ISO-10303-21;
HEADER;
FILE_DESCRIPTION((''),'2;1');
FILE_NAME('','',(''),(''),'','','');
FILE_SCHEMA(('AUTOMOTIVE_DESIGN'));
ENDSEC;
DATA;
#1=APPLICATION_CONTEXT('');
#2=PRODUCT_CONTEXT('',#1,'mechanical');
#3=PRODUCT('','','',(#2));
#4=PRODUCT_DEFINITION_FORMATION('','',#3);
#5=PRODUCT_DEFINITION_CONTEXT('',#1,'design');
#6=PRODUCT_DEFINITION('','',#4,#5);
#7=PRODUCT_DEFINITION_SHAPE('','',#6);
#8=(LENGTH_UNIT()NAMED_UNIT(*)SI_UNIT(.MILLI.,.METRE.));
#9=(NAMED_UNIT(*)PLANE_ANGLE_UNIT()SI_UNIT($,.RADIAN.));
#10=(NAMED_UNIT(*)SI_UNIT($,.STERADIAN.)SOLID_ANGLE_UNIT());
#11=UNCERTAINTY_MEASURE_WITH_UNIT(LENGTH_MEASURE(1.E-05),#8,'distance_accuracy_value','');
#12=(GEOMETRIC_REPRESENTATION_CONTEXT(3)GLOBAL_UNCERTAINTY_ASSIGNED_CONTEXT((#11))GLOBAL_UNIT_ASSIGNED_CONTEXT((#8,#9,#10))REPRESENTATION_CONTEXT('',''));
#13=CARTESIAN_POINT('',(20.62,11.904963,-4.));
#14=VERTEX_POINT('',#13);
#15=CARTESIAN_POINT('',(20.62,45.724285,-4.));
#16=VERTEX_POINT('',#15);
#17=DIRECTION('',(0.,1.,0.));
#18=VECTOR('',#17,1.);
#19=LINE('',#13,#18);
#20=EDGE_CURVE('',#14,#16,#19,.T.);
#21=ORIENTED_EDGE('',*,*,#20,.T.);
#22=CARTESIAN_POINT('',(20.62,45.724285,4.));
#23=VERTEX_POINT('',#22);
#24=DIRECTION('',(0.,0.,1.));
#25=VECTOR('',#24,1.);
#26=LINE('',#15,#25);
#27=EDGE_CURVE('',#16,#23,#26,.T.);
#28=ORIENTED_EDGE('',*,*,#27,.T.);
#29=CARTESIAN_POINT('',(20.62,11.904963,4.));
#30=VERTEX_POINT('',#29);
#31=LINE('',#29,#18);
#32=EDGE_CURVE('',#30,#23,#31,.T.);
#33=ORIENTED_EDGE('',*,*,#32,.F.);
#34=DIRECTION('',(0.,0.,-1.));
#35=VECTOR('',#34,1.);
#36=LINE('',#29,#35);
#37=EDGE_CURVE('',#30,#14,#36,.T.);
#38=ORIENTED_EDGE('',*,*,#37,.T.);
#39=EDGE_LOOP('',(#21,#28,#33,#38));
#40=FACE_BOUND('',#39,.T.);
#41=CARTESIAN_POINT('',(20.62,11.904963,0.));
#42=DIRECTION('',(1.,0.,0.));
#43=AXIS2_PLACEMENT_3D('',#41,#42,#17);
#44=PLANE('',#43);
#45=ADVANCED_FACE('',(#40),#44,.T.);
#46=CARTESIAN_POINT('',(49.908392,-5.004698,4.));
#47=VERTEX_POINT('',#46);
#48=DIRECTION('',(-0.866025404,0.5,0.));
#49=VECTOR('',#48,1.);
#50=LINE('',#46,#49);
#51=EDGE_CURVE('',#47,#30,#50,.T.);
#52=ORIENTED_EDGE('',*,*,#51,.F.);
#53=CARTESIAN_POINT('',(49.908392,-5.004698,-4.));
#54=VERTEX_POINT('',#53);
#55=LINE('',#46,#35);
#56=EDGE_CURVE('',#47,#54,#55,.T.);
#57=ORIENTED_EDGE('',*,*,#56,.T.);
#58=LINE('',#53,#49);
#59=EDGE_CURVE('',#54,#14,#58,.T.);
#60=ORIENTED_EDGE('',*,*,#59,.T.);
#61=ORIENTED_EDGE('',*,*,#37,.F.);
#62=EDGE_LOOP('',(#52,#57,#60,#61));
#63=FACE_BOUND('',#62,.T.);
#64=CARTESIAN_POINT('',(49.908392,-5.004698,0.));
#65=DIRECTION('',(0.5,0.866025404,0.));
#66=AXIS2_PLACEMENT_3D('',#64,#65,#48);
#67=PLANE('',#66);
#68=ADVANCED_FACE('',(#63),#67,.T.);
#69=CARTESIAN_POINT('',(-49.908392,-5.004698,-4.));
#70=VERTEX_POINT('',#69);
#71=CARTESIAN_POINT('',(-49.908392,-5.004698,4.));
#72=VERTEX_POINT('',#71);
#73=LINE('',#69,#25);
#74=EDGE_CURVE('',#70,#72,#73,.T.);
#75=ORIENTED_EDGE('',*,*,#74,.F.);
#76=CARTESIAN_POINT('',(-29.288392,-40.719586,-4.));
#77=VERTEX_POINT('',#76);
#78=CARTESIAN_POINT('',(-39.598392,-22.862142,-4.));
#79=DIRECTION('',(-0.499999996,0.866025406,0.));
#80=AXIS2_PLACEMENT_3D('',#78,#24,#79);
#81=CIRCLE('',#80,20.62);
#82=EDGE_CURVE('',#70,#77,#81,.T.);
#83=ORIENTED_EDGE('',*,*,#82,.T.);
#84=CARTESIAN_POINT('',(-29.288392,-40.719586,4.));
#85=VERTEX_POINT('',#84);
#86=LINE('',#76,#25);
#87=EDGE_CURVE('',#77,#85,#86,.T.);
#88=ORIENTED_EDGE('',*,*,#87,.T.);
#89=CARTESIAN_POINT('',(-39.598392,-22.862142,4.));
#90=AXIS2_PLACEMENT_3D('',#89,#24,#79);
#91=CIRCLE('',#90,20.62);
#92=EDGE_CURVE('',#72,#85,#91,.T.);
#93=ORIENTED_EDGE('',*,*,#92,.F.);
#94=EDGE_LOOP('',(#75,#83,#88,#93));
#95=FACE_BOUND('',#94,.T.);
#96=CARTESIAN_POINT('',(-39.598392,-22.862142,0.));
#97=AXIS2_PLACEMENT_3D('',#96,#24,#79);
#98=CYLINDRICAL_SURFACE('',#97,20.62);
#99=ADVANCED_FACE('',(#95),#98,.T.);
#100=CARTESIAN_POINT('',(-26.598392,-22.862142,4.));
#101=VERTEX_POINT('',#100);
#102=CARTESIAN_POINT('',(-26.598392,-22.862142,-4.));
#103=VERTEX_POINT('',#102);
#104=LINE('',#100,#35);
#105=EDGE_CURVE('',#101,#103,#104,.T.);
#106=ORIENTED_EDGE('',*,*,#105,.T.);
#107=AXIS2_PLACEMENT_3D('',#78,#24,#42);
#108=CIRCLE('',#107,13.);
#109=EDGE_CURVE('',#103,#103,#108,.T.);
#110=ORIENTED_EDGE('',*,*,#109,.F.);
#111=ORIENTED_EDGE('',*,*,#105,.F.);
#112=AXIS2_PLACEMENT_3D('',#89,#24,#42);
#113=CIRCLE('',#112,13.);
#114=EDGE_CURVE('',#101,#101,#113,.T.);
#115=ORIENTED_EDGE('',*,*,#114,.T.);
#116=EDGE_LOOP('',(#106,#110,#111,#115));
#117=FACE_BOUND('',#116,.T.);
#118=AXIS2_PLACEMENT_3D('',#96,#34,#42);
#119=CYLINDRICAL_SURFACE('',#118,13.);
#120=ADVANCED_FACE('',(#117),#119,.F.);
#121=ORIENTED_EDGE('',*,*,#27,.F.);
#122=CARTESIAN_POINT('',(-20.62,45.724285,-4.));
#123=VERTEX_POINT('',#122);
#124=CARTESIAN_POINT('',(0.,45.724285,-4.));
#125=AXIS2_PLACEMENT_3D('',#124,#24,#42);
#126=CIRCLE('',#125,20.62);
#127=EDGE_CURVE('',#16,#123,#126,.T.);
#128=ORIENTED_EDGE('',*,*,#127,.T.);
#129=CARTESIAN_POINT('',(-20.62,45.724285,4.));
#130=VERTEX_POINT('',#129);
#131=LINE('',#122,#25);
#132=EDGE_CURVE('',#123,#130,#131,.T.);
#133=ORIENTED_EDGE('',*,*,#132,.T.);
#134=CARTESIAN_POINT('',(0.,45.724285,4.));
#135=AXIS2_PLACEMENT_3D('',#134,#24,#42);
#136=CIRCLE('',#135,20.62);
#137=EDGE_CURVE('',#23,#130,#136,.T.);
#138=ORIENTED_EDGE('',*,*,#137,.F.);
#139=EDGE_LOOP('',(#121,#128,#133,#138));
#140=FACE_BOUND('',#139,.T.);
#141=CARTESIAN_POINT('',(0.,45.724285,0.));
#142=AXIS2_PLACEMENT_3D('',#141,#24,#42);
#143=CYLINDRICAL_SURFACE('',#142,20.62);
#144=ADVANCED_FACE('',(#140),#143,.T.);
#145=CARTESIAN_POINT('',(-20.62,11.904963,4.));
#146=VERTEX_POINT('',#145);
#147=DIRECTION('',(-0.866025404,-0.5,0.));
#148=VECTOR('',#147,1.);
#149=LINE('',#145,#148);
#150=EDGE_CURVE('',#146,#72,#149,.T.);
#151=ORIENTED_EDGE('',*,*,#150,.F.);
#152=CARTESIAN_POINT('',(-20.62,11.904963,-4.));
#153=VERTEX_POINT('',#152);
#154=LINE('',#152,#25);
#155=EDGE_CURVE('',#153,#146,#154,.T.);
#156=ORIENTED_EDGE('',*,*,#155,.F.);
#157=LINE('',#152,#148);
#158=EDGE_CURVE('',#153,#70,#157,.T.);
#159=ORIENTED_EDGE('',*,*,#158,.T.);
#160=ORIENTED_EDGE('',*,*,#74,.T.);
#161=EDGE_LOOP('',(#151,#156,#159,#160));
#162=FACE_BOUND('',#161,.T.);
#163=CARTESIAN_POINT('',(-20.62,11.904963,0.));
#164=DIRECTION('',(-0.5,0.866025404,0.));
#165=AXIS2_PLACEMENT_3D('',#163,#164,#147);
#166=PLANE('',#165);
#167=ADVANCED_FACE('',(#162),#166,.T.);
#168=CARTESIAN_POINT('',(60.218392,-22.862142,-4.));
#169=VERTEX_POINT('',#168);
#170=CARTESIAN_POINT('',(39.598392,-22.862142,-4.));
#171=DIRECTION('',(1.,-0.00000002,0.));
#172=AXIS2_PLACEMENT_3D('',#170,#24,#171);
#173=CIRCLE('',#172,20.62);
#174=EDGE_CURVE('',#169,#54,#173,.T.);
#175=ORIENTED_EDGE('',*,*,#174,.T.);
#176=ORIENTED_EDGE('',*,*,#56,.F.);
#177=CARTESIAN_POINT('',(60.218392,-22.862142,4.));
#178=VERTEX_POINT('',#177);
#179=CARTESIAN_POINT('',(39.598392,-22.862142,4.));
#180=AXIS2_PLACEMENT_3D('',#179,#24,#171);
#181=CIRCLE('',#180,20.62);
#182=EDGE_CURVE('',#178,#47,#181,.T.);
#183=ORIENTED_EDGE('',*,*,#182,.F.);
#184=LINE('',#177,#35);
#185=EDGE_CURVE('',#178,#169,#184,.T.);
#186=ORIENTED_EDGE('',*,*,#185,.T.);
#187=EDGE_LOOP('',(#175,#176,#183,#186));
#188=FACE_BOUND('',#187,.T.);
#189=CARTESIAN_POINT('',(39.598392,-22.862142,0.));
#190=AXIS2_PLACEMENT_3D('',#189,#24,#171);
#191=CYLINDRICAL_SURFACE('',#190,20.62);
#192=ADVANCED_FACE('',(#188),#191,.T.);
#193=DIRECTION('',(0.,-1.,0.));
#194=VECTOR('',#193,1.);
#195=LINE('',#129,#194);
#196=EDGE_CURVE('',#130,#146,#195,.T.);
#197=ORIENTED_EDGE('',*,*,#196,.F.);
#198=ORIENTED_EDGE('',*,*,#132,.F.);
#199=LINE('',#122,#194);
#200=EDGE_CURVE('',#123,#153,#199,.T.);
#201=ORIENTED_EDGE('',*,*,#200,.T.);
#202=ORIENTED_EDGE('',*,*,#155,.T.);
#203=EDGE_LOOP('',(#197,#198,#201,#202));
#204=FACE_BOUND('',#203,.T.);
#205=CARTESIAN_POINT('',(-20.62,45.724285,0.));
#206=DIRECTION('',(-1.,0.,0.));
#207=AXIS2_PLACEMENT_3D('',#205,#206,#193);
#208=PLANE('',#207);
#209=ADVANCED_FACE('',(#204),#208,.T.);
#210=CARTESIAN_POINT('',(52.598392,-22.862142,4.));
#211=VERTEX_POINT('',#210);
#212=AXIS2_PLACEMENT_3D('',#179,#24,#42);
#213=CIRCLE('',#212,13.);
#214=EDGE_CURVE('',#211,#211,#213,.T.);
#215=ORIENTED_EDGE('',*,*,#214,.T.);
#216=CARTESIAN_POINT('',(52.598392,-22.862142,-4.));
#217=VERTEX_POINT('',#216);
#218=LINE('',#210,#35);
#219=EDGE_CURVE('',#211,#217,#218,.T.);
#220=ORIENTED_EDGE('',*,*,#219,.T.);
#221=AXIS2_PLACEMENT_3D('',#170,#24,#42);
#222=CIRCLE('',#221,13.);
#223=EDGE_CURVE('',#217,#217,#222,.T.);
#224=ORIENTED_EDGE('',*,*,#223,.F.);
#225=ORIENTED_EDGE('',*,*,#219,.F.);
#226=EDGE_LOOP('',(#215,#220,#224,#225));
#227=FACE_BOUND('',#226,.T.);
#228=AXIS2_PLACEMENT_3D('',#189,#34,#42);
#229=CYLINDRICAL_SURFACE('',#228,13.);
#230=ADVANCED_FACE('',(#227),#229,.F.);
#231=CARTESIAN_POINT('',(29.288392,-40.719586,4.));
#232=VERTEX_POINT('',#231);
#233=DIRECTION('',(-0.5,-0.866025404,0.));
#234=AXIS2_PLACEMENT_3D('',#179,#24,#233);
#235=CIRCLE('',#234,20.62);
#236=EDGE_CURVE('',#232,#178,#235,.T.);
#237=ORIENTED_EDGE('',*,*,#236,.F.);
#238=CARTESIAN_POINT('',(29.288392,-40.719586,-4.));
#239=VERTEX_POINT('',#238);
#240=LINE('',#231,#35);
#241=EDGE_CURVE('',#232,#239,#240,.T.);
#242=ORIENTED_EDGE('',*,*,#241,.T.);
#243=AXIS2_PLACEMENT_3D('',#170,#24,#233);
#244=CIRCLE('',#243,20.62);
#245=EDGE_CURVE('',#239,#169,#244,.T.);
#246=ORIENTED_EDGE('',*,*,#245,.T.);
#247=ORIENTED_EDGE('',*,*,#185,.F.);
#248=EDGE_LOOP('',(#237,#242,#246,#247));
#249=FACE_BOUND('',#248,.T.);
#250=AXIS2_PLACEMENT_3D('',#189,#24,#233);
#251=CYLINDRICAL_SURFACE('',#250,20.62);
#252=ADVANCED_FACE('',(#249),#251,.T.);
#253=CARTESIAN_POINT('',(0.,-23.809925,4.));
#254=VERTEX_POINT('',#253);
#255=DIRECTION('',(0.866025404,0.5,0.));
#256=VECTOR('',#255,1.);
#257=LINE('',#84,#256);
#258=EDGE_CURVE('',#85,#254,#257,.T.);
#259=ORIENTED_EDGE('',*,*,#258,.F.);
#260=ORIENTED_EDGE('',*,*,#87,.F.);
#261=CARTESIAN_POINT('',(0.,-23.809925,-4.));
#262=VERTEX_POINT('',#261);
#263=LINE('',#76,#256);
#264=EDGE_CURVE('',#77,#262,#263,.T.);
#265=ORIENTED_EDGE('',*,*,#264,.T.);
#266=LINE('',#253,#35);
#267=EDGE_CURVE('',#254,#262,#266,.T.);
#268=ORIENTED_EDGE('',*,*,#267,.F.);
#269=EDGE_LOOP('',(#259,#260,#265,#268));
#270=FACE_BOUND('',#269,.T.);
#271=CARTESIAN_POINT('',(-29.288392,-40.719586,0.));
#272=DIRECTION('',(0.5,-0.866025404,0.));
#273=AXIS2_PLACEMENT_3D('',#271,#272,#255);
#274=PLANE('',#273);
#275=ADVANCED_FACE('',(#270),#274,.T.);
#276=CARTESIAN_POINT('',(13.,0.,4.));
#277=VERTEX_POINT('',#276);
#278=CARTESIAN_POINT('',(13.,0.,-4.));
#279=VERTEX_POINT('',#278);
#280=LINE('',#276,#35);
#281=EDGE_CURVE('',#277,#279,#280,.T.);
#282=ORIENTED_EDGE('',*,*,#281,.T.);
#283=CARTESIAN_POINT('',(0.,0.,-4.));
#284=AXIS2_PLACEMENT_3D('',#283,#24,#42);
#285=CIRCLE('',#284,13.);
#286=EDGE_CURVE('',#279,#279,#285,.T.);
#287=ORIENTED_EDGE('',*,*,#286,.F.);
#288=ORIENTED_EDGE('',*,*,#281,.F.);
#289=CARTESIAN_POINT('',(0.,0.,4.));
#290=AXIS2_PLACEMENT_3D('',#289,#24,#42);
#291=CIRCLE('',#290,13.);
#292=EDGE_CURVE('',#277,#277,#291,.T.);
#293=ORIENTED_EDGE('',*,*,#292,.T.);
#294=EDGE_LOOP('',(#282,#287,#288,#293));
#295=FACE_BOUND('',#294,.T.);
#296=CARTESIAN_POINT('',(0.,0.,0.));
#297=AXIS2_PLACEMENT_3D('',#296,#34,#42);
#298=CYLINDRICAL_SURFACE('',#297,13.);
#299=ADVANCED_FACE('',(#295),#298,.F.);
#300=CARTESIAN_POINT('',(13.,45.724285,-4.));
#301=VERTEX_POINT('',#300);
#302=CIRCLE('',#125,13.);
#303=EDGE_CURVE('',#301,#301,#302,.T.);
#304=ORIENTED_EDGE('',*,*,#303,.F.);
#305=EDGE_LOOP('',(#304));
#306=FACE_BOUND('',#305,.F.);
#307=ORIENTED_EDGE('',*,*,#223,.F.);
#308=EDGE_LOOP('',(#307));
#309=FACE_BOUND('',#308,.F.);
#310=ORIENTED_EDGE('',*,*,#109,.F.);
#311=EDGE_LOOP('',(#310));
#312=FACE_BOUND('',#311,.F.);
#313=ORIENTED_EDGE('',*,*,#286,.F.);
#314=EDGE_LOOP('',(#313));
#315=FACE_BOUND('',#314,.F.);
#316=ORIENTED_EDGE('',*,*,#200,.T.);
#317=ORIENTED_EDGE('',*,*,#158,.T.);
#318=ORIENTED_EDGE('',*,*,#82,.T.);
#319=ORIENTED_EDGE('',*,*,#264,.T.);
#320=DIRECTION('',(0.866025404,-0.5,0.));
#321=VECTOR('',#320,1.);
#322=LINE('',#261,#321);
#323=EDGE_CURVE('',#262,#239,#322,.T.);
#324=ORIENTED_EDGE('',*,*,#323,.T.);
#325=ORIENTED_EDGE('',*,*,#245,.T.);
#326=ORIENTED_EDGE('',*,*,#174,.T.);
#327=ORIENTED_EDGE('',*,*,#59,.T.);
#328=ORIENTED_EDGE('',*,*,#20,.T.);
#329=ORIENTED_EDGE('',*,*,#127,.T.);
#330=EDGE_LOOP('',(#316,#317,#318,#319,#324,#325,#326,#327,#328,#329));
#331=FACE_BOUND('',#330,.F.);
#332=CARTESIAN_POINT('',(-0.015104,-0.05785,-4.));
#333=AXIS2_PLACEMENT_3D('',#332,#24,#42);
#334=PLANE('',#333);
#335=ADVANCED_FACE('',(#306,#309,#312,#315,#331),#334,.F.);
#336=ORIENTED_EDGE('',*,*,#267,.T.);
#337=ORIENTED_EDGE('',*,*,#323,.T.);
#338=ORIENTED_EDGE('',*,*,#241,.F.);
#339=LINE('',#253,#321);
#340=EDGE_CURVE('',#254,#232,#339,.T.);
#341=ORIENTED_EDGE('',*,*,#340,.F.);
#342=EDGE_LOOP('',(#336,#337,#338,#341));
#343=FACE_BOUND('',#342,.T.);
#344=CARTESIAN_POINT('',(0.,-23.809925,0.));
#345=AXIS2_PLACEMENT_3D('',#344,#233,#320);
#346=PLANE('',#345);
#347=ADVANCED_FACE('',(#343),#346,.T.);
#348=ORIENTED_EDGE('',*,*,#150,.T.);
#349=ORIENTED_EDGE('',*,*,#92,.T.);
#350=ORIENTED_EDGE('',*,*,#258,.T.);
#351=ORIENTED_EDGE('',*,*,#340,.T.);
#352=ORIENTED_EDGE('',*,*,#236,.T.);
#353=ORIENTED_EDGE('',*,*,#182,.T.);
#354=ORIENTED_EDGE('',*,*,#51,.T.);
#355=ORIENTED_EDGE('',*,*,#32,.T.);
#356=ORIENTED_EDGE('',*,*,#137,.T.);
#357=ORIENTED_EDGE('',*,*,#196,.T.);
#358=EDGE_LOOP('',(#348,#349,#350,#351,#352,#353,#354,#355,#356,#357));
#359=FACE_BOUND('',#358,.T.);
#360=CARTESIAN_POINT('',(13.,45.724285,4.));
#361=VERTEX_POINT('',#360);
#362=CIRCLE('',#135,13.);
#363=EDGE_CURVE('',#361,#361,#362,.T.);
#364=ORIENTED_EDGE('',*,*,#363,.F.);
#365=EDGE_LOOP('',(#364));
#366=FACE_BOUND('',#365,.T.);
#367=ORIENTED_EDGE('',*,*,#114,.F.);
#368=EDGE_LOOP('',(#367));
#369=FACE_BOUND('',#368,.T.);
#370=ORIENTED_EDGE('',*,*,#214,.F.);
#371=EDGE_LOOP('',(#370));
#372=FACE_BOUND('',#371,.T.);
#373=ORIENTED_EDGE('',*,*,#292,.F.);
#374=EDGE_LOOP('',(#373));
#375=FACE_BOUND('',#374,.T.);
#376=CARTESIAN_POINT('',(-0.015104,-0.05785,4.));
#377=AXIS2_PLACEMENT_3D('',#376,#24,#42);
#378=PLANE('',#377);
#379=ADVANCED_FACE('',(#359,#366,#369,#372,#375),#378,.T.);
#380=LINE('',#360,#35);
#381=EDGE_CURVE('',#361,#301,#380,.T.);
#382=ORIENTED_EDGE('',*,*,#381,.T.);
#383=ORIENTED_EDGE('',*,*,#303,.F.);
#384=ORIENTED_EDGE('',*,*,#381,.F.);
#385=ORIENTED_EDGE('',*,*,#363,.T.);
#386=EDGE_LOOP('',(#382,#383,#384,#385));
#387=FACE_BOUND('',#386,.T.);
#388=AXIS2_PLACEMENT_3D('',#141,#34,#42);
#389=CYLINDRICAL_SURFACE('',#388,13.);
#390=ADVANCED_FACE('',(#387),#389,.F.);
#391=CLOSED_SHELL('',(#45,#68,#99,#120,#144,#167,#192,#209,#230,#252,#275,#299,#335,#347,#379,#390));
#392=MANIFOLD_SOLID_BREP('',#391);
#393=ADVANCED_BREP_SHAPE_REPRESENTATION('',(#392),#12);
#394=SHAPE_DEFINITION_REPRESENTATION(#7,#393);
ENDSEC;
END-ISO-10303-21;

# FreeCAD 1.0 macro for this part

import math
import FreeCAD as App
import Part
import Sketcher
Q = App.Units.Quantity

doc = App.newDocument("Part")
params = doc.addObject("Spreadsheet::Sheet", "Params")
for row, (alias, value) in enumerate([
    ("sketch1_diameter", "26 mm"),
    ("sketch1_radius", "20.62 mm"),
    ("pad1_length", "8 mm"),
], start=1):
    params.set(f"A{row}", alias)
    params.set(f"B{row}", "=" + value)
    params.setAlias(f"B{row}", alias)

body = doc.addObject("PartDesign::Body", "Body")

# Sketch on XY plane
sketch1 = body.newObject("Sketcher::SketchObject", "Sketch")
sketch1.AttachmentSupport = (doc.getObject("XY_Plane"), [""])
sketch1.MapMode = "FlatFace"
sketch1.addGeometry([
    Part.LineSegment(App.Vector(21, 12, 0), App.Vector(21, 46, 0)),  # 0
    Part.ArcOfCircle(Part.Circle(App.Vector(0, 46, 0), App.Vector(0, 0, 1), 21), math.radians(0), math.radians(180)),  # 1
    Part.LineSegment(App.Vector(-21, 46, 0), App.Vector(-21, 12, 0)),  # 2
    Part.LineSegment(App.Vector(-21, 12, 0), App.Vector(-50, -5, 0)),  # 3
    Part.ArcOfCircle(Part.Circle(App.Vector(-40, -23, 0), App.Vector(0, 0, 1), 21), math.radians(120), math.radians(300)),  # 4
    Part.LineSegment(App.Vector(-29, -41, 0), App.Vector(0, -24, 0)),  # 5
    Part.LineSegment(App.Vector(0, -24, 0), App.Vector(29, -41, 0)),  # 6
    Part.ArcOfCircle(Part.Circle(App.Vector(40, -23, 0), App.Vector(0, 0, 1), 21), math.radians(-120), math.radians(0)),  # 7
    Part.ArcOfCircle(Part.Circle(App.Vector(40, -23, 0), App.Vector(0, 0, 1), 21), math.radians(0), math.radians(60)),  # 8
    Part.LineSegment(App.Vector(50, -5, 0), App.Vector(21, 12, 0)),  # 9
    Part.Circle(App.Vector(-40, -23, 0), App.Vector(0, 0, 1), 13),  # 10
    Part.Circle(App.Vector(40, -23, 0), App.Vector(0, 0, 1), 13),  # 11
    Part.Circle(App.Vector(0, 0, 0), App.Vector(0, 0, 1), 13),  # 12
    Part.Circle(App.Vector(0, 46, 0), App.Vector(0, 0, 1), 13),  # 13
], False)
sketch1.addConstraint([
    Sketcher.Constraint("Tangent", 0, 2, 1, 1),
    Sketcher.Constraint("Tangent", 1, 2, 2, 1),
    Sketcher.Constraint("Coincident", 2, 2, 3, 1),
    Sketcher.Constraint("Tangent", 3, 2, 4, 1),
    Sketcher.Constraint("Tangent", 4, 2, 5, 1),
    Sketcher.Constraint("Coincident", 5, 2, 6, 1),
    Sketcher.Constraint("Tangent", 6, 2, 7, 1),
    Sketcher.Constraint("Tangent", 7, 2, 8, 1),
    Sketcher.Constraint("Tangent", 8, 2, 9, 1),
    Sketcher.Constraint("Coincident", 9, 2, 0, 1),
    Sketcher.Constraint("Vertical", 0),
    Sketcher.Constraint("Vertical", 2),
    Sketcher.Constraint("Coincident", 12, 3, -1, 1),
    Sketcher.Constraint("Coincident", 10, 3, 4, 3),
    Sketcher.Constraint("Coincident", 11, 3, 7, 3),
    Sketcher.Constraint("Coincident", 13, 3, 1, 3),
    Sketcher.Constraint("Equal", 1, 4),
    Sketcher.Constraint("Equal", 4, 7),
    Sketcher.Constraint("Equal", 7, 8),
    Sketcher.Constraint("Equal", 10, 11),
    Sketcher.Constraint("Equal", 11, 12),
    Sketcher.Constraint("Equal", 12, 13),
    Sketcher.Constraint("Symmetric", 4, 3, 7, 3, -2),
    Sketcher.Constraint("Symmetric", 2, 2, 9, 2, -2),
    Sketcher.Constraint("PointOnObject", 5, 2, -2),
    Sketcher.Constraint("Parallel", 3, 5),
    Sketcher.Constraint("Horizontal", 11, 3, 7, 2),
    Sketcher.Constraint("Equal", 3, 5),
    Sketcher.Constraint("Diameter", 10, Q("26 mm")),
    Sketcher.Constraint("Radius", 1, Q("20.62 mm")),
    Sketcher.Constraint("DistanceY", 3, 2, -1, 1, Q("5.004698 mm")),
    Sketcher.Constraint("DistanceY", 0, 1, 0, 2, Q("33.819322 mm")),
    Sketcher.Constraint("DistanceX", 4, 3, -1, 1, Q("39.598392 mm")),
])
sketch1.setExpression("Constraints[28]", "Params.sketch1_diameter")
sketch1.setExpression("Constraints[29]", "Params.sketch1_radius")
pad1 = body.newObject("PartDesign::Pad", "Pad")
pad1.Profile = sketch1
pad1.setExpression("Length", "Params.pad1_length")
pad1.Midplane = True

doc.recompute()
